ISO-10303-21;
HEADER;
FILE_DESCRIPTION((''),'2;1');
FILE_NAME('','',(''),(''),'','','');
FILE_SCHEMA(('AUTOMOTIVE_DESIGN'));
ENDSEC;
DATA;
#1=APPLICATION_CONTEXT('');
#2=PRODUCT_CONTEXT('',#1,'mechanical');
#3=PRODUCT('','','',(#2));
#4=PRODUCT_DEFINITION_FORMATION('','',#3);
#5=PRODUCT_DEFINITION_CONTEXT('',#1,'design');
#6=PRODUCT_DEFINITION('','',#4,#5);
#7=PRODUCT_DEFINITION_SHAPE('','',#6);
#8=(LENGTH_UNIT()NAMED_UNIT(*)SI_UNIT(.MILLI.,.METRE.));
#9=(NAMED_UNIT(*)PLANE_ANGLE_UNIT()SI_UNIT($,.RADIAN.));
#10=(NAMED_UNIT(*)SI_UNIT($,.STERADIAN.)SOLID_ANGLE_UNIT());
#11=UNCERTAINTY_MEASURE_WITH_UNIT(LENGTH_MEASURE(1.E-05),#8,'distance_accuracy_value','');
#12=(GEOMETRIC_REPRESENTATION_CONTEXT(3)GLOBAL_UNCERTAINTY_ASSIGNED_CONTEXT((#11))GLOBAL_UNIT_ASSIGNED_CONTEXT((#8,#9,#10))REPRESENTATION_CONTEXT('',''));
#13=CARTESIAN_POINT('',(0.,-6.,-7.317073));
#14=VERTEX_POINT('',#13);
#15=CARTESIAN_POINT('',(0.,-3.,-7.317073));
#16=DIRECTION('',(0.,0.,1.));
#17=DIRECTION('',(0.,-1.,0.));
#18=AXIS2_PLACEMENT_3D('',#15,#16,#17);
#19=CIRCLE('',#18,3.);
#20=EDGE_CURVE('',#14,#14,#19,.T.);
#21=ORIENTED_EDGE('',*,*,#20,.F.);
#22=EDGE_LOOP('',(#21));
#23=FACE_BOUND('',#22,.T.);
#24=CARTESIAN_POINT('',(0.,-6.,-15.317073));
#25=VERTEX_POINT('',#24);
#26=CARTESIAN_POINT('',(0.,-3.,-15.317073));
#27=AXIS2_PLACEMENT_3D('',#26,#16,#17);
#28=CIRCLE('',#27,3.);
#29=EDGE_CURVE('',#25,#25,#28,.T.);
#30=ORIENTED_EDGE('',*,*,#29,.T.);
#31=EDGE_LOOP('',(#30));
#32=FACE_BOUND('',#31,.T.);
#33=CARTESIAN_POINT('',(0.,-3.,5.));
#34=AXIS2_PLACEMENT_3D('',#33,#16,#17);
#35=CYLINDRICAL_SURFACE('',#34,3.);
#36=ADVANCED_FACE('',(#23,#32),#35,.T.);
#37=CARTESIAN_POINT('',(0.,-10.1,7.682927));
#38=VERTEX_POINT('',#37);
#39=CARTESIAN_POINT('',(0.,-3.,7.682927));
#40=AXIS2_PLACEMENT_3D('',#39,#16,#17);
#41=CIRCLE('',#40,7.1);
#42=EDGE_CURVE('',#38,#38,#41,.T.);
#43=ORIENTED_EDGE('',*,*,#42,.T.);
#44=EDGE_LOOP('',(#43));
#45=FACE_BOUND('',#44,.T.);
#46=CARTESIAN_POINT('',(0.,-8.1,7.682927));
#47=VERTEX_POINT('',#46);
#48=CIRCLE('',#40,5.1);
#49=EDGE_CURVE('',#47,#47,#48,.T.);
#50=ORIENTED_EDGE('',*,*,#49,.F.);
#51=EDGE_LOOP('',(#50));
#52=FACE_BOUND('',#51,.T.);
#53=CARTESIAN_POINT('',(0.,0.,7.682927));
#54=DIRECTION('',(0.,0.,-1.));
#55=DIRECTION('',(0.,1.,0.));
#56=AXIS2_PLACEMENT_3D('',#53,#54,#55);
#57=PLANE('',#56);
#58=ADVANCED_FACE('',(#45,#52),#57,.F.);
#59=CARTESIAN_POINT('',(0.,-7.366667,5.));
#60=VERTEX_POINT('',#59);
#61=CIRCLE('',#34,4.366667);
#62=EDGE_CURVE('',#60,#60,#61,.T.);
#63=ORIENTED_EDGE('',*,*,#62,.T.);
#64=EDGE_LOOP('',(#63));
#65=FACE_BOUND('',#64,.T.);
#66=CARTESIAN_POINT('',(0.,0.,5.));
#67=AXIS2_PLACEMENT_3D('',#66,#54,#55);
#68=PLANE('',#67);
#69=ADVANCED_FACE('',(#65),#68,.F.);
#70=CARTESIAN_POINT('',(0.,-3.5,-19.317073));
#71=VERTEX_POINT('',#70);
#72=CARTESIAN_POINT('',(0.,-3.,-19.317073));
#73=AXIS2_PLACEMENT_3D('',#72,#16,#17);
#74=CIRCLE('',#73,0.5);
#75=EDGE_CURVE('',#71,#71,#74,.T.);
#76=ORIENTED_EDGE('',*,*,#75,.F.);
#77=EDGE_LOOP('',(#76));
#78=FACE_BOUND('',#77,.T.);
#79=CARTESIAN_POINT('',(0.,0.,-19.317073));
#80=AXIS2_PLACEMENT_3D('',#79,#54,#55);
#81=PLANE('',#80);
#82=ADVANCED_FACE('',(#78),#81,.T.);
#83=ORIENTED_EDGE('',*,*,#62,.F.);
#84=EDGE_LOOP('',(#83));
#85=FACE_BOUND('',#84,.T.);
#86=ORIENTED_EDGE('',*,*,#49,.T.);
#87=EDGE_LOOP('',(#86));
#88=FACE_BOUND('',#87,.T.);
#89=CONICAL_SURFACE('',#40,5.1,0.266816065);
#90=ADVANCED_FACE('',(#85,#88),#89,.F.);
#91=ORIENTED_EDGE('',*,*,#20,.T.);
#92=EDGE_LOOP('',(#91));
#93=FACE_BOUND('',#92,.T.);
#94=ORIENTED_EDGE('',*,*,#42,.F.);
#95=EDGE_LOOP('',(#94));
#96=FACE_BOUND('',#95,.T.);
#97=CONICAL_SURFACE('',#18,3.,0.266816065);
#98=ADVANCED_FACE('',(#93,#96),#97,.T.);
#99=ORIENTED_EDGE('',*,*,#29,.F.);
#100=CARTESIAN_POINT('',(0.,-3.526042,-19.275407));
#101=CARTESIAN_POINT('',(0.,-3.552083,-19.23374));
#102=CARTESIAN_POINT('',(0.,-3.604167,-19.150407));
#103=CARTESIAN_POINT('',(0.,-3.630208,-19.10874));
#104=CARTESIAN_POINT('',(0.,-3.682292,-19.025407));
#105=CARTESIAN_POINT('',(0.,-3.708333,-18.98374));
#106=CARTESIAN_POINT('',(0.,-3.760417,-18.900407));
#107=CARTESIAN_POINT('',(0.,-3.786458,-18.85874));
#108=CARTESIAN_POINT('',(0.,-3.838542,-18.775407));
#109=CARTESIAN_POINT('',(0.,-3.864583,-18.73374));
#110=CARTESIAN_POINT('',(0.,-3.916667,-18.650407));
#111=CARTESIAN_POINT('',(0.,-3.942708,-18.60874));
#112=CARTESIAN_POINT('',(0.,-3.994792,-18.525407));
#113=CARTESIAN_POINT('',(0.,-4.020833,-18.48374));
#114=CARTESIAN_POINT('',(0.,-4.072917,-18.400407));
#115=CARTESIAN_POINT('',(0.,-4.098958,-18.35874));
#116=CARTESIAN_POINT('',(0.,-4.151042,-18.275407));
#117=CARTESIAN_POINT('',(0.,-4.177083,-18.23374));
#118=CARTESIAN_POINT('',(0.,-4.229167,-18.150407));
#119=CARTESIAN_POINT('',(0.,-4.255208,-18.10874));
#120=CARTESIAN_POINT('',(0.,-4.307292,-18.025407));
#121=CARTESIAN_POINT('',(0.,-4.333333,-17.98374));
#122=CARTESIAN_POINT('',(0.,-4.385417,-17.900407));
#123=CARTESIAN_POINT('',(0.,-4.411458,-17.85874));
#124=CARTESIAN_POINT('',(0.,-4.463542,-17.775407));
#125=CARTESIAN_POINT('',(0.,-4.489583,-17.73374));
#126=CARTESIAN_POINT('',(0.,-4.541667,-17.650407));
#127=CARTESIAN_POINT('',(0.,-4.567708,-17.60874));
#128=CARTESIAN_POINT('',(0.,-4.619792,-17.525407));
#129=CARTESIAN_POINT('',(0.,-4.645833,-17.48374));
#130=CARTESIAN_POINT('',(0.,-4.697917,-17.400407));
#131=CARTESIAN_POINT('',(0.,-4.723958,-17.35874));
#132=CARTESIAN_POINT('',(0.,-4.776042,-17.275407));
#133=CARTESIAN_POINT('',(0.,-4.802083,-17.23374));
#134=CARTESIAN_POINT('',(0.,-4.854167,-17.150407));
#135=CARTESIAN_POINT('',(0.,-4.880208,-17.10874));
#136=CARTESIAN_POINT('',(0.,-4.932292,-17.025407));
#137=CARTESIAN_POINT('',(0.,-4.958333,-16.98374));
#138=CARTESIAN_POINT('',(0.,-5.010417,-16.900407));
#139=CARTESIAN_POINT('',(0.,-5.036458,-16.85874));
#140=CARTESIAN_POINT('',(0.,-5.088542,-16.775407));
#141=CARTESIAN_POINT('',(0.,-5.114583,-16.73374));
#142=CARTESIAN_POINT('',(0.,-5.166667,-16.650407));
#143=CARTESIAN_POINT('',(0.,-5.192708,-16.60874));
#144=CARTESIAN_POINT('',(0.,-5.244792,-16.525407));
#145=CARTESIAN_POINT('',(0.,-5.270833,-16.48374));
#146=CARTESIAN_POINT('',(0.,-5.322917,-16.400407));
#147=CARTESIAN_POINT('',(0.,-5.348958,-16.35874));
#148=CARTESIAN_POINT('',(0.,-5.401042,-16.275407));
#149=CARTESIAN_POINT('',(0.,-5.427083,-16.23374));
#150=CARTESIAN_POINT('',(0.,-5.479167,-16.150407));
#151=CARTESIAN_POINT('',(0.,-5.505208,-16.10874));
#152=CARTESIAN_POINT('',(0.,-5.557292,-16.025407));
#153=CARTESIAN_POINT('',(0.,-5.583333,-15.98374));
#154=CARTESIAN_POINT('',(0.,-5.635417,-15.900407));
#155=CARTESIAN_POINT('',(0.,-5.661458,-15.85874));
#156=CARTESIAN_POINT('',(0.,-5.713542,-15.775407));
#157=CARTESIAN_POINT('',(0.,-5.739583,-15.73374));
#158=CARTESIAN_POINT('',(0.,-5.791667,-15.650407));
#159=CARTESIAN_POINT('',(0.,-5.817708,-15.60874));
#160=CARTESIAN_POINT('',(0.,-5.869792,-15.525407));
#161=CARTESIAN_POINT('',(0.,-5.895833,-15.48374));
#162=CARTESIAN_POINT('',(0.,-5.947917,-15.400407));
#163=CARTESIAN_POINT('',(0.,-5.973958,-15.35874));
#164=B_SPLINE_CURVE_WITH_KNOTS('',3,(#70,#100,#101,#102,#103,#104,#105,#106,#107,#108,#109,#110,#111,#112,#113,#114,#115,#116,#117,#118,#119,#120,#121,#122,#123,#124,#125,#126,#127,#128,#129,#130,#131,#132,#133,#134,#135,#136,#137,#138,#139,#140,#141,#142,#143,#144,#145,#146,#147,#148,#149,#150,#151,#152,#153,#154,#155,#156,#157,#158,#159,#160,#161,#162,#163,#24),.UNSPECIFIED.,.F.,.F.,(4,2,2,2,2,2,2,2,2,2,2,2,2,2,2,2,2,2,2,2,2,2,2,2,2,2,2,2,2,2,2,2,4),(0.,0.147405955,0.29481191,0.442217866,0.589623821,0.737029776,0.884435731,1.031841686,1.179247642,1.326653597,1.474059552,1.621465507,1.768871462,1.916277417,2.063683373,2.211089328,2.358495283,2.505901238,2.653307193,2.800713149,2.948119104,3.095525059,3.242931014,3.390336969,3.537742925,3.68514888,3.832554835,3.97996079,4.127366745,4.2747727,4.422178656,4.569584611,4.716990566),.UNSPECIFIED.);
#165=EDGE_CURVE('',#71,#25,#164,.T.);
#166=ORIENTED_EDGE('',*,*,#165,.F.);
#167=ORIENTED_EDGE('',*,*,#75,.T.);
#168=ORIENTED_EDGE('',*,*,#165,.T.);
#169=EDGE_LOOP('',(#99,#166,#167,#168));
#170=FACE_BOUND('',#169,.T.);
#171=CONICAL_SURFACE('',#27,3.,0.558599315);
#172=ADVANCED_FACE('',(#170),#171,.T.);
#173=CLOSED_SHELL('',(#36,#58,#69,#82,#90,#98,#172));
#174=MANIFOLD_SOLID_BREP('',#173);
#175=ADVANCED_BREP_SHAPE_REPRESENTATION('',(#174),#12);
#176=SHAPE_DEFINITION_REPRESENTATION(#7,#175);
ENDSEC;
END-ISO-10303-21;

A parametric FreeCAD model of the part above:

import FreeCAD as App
import Part
import Sketcher

V = App.Vector
Q = App.Units.Quantity

doc = App.newDocument("Part")
body = doc.addObject("PartDesign::Body", "Body")

# Sketch on YZ plane
sketch1 = body.newObject("Sketcher::SketchObject", "Sketch")
sketch1.AttachmentSupport = (doc.getObject("YZ_Plane"), [""])
sketch1.MapMode = "FlatFace"
sketch1.addGeometry([
    Part.LineSegment(V(0, 5, 0), V(-3, 5, 0)),  # 0
    Part.LineSegment(V(-3, 5, 0), V(-3, -19.3, 0)),  # 1
    Part.LineSegment(V(-3, -19.3, 0), V(-2.5, -19.3, 0)),  # 2
    Part.LineSegment(V(-2.5, -19.3, 0), V(0, -15.3, 0)),  # 3
    Part.LineSegment(V(0, -15.3, 0), V(0, -7.3, 0)),  # 4
    Part.LineSegment(V(0, -7.3, 0), V(4.1, 7.7, 0)),  # 5
    Part.LineSegment(V(4.1, 7.7, 0), V(2.1, 7.7, 0)),  # 6
    Part.LineSegment(V(2.1, 7.7, 0), V(1.4, 5, 0)),  # 7
    Part.LineSegment(V(1.4, 5, 0), V(0, 5, 0)),  # 8
], False)
sketch1.addGeometry(Part.LineSegment(V(-3, 7.7, 0), V(-3, -19.3, 0)), True)  # axis
sketch1.addConstraint([
    Sketcher.Constraint("Coincident", 0, 2, 1, 1),
    Sketcher.Constraint("Coincident", 1, 2, 2, 1),
    Sketcher.Constraint("Coincident", 2, 2, 3, 1),
    Sketcher.Constraint("Coincident", 3, 2, 4, 1),
    Sketcher.Constraint("Coincident", 4, 2, 5, 1),
    Sketcher.Constraint("Coincident", 5, 2, 6, 1),
    Sketcher.Constraint("Coincident", 6, 2, 7, 1),
    Sketcher.Constraint("Coincident", 7, 2, 8, 1),
    Sketcher.Constraint("Coincident", 8, 2, 0, 1),
    Sketcher.Constraint("Horizontal", 0),
    Sketcher.Constraint("Vertical", 1),
    Sketcher.Constraint("Horizontal", 2),
    Sketcher.Constraint("Vertical", 4),
    Sketcher.Constraint("Horizontal", 6),
    Sketcher.Constraint("Horizontal", 8),
    Sketcher.Constraint("Vertical", 9),
    Sketcher.Constraint("Coincident", 9, 2, 1, 2),
    Sketcher.Constraint("PointOnObject", 3, 2, -2),
    Sketcher.Constraint("PointOnObject", 8, 2, -2),
    Sketcher.Constraint("Parallel", 5, 7),
    Sketcher.Constraint("Horizontal", 6, 2, 9, 1),
    Sketcher.Constraint("DistanceX", 0, 2, 0, 1, Q("3 mm")),
    Sketcher.Constraint("DistanceX", 6, 2, 6, 1, Q("2 mm")),
    Sketcher.Constraint("DistanceY", 4, 1, 4, 2, Q("8 mm")),
    Sketcher.Constraint("DistanceY", 9, 2, 9, 1, Q("27 mm")),
    Sketcher.Constraint("DistanceX", 2, 1, 2, 2, Q("0.5 mm")),
    Sketcher.Constraint("DistanceY", -1, 1, 0, 2, Q("5 mm")),
    Sketcher.Constraint("DistanceY", 2, 2, 3, 2, Q("4 mm")),
    Sketcher.Constraint("DistanceX", -1, 1, 5, 2, Q("4.1 mm")),
    Sketcher.Constraint("DistanceX", 8, 2, 8, 1, Q("1.366667 mm")),
])
revolution = body.newObject("PartDesign::Revolution", "Revolution")
revolution.Profile = sketch1
revolution.ReferenceAxis = (sketch1, ["Axis0"])
revolution.Angle = 360

doc.recompute()
